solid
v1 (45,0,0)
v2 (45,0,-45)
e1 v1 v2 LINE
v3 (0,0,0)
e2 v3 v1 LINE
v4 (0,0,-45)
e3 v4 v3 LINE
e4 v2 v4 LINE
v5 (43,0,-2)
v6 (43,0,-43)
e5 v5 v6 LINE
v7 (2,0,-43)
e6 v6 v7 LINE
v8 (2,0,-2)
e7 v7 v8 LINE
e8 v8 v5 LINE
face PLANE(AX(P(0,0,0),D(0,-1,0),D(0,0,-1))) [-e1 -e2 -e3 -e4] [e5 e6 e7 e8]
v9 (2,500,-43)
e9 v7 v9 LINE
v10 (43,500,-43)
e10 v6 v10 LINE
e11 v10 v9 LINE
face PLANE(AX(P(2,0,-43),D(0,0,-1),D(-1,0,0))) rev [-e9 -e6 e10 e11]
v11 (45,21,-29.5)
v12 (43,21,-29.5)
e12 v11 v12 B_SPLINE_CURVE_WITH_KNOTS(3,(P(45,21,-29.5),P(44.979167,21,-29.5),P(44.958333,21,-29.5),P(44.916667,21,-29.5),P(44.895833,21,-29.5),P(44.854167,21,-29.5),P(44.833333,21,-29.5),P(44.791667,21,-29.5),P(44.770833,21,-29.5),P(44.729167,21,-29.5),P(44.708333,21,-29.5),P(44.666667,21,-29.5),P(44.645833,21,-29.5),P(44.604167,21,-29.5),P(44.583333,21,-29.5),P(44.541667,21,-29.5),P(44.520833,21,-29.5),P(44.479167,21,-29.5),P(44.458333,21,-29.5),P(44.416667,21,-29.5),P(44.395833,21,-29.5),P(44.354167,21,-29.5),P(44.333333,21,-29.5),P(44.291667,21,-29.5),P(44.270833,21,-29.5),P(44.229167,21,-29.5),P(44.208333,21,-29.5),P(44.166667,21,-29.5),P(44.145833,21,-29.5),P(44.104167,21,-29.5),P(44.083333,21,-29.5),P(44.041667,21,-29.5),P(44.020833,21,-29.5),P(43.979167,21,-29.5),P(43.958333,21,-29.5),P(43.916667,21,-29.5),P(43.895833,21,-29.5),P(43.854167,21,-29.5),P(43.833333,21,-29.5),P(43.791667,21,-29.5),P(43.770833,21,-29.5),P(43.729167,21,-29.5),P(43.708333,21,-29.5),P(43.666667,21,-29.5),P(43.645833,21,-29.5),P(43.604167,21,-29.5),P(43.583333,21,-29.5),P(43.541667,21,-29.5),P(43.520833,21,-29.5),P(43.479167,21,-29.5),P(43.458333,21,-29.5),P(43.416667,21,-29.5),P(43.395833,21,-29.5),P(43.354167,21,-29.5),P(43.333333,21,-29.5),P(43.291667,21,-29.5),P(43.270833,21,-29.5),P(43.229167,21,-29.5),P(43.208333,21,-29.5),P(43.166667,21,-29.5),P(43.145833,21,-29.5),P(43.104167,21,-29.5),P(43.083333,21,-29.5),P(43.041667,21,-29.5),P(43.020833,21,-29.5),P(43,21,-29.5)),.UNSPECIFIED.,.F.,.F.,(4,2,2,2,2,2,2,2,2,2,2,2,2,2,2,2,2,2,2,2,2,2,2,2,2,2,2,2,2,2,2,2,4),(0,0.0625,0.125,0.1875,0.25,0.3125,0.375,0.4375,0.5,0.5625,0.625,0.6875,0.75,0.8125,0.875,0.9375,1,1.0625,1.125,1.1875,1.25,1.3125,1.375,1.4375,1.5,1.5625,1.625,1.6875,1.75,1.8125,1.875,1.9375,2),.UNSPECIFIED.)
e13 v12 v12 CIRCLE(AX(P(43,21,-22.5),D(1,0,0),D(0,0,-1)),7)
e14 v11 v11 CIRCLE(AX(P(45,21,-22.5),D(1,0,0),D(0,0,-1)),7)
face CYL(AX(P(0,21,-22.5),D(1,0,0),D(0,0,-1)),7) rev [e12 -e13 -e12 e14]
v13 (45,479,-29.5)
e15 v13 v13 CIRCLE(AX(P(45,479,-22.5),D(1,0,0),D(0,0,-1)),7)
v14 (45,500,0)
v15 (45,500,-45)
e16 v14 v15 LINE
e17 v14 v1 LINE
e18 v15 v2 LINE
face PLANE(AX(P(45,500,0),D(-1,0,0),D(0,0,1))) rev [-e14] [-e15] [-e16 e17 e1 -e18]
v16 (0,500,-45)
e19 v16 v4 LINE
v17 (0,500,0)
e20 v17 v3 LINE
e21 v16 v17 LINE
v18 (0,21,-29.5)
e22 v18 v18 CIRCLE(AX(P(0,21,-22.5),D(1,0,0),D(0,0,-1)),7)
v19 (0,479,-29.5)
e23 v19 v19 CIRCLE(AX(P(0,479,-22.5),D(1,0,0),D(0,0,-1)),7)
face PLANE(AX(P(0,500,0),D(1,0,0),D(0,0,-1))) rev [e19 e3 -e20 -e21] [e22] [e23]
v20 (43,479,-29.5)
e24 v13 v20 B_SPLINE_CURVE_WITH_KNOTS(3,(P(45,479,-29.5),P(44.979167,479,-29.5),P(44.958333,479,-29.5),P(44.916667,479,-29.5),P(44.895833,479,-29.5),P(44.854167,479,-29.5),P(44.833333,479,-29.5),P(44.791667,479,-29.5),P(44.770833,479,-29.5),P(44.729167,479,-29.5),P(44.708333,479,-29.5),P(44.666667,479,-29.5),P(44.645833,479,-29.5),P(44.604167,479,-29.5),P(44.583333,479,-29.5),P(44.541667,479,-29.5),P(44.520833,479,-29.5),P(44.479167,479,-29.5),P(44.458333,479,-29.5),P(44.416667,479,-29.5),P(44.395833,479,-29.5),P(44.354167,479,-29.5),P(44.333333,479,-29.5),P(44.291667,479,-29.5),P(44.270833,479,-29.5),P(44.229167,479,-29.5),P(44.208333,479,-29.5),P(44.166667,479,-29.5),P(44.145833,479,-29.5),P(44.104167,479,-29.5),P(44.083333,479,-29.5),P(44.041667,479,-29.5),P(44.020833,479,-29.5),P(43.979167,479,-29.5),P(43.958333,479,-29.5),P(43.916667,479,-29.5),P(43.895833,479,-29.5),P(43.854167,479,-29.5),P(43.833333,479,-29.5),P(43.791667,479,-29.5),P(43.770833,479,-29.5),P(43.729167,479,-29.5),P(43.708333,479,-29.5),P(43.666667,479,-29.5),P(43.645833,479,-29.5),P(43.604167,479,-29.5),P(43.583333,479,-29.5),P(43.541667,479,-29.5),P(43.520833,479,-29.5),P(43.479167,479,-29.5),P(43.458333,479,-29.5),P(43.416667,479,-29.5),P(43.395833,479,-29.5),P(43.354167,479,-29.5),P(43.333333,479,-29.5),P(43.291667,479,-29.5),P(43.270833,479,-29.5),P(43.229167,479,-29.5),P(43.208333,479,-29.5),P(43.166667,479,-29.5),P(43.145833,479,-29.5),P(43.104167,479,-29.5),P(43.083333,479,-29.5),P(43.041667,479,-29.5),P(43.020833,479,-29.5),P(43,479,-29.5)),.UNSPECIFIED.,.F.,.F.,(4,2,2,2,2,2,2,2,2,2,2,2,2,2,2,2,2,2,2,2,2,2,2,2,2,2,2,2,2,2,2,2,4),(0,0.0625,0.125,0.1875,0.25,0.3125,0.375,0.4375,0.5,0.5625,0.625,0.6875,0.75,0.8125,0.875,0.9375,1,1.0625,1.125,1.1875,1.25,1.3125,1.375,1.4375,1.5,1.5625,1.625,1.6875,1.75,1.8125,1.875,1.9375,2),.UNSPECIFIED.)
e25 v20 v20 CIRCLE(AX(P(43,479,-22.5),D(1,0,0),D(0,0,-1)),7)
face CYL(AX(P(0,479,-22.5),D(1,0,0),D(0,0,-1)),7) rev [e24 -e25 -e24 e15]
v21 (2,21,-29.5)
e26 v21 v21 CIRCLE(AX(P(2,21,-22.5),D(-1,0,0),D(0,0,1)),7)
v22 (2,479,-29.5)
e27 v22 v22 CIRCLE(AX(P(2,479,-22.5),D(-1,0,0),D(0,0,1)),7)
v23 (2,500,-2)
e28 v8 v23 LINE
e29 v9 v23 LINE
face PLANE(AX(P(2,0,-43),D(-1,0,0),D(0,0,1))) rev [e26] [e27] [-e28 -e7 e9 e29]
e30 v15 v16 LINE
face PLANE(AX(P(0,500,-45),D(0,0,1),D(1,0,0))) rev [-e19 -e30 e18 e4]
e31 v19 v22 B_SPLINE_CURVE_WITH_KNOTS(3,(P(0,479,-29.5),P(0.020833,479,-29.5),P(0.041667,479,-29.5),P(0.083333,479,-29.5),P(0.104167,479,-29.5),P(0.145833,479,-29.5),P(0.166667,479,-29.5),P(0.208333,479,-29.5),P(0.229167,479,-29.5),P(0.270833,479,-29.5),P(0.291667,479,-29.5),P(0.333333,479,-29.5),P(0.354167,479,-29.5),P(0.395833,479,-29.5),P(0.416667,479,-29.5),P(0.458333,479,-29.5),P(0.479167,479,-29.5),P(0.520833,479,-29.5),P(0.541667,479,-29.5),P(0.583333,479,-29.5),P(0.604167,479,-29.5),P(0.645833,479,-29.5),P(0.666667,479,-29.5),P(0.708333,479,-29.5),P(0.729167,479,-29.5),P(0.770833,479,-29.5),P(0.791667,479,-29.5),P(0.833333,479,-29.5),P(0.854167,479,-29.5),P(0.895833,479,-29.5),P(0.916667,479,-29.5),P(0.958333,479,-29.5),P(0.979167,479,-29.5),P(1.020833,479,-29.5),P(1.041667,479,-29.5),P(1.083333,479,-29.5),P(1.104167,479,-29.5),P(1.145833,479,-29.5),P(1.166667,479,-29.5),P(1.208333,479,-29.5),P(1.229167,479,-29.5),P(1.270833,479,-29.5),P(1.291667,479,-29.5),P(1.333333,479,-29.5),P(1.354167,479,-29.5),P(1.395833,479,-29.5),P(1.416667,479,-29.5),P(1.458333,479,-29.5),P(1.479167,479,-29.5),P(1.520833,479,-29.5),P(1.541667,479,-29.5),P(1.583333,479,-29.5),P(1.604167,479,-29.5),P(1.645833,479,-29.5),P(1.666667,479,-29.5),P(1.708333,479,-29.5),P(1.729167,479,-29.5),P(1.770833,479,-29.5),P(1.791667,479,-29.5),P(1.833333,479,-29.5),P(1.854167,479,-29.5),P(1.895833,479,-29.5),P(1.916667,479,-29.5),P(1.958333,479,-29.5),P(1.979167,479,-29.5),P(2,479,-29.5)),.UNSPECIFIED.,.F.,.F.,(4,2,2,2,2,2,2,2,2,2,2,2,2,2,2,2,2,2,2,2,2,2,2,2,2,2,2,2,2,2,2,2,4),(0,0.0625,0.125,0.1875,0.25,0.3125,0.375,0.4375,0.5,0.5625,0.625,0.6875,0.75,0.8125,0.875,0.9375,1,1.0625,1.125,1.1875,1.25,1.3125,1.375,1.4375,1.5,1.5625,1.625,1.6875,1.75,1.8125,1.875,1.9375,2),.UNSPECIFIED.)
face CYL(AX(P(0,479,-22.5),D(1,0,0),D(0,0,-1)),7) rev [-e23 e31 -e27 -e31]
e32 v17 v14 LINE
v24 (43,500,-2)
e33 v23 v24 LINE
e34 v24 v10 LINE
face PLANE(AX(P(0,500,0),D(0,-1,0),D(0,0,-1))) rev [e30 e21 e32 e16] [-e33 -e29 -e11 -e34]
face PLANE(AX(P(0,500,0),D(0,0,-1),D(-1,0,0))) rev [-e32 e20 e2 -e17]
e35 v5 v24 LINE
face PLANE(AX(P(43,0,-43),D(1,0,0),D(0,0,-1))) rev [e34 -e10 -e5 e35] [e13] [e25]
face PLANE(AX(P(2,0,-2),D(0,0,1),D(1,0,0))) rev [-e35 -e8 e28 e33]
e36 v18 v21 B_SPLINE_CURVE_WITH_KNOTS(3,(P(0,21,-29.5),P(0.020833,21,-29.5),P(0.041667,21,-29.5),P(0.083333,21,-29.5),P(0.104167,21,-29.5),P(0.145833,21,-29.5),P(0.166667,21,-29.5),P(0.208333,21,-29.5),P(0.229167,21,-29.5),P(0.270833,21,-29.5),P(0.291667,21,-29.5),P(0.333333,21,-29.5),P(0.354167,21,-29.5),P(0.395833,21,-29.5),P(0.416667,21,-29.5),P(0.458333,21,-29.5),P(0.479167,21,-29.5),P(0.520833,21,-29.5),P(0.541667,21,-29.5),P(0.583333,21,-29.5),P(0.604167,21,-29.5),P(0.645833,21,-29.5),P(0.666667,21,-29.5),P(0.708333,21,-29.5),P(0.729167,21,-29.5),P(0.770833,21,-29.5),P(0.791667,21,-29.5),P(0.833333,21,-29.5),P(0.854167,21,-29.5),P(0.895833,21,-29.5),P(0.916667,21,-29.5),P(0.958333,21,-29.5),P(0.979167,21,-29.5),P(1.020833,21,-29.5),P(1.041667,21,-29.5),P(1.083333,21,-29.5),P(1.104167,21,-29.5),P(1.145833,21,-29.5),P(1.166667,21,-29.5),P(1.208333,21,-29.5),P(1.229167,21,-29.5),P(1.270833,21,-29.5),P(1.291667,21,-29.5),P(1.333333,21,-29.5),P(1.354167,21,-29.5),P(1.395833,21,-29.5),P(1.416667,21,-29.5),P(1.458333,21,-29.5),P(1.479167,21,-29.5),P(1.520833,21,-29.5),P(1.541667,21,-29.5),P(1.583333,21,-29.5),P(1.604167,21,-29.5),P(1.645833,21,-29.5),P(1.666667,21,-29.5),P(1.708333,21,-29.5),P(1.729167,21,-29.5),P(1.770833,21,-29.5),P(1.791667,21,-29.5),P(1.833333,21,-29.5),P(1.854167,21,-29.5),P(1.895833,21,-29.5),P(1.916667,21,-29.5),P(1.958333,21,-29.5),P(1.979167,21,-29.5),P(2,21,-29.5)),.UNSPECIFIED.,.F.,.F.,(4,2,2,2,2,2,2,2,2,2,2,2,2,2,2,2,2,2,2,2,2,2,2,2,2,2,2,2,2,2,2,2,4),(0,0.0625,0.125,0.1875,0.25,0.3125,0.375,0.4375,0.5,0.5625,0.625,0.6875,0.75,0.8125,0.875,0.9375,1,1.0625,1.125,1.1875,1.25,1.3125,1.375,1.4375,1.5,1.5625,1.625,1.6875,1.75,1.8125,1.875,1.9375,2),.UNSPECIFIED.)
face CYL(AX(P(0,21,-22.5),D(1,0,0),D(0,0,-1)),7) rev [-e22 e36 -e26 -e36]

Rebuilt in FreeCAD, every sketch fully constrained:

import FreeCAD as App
import Part
import Sketcher

V = App.Vector


def add_polygon(sketch, points):
    """Adds a closed chain of lines whose ends are joined by coincident constraints."""
    first, n = sketch.GeometryCount, len(points)
    for a, b in zip(points, points[1:] + points[:1]):
        sketch.addGeometry(Part.LineSegment(App.Vector(*a, 0), App.Vector(*b, 0)), False)
    for i in range(n):
        sketch.addConstraint(Sketcher.Constraint("Coincident", first + i, 2, first + (i + 1) % n, 1))

doc = App.newDocument("Part")
body = doc.addObject("PartDesign::Body", "Body")

# Sketch on XZ plane
sketch1 = body.newObject("Sketcher::SketchObject", "Sketch")
sketch1.AttachmentSupport = (doc.getObject("XZ_Plane"), [""])
sketch1.MapMode = "FlatFace"
add_polygon(sketch1, [(0, -45), (0, 0), (45, 0), (45, -45)])  # lines 0-3
sketch1.addConstraint([
    Sketcher.Constraint("Vertical", 0),
    Sketcher.Constraint("Horizontal", 1),
    Sketcher.Constraint("Vertical", 2),
    Sketcher.Constraint("Horizontal", 3),
    Sketcher.Constraint("Coincident", 0, 2, -1, 1),
    Sketcher.Constraint("Equal", 3, 0),
    Sketcher.Constraint("DistanceX", 1, 1, 1, 2, 45.0),
])
pad1 = body.newObject("PartDesign::Pad", "Pad")
pad1.Profile = sketch1
pad1.Length = 500
pad1.Reversed = True

# Sketch on XZ plane
sketch2 = body.newObject("Sketcher::SketchObject", "Sketch001")
sketch2.AttachmentSupport = (doc.getObject("XZ_Plane"), [""])
sketch2.MapMode = "FlatFace"
sketch2.AttachmentOffset = App.Placement(V(0, 0, -500), App.Rotation())
add_polygon(sketch2, [(2, -43), (2, -2), (43, -2), (43, -43)])  # lines 0-3
sketch2.addConstraint([
    Sketcher.Constraint("Vertical", 0),
    Sketcher.Constraint("Horizontal", 1),
    Sketcher.Constraint("Vertical", 2),
    Sketcher.Constraint("Horizontal", 3),
    Sketcher.Constraint("Equal", 3, 0),
    Sketcher.Constraint("DistanceX", 1, 1, 1, 2, 41.0),
    Sketcher.Constraint("DistanceX", -1, 1, 0, 2, 2.0),
    Sketcher.Constraint("DistanceY", 0, 2, -1, 1, 2.0),
])
pocket1 = body.newObject("PartDesign::Pocket", "Pocket")
pocket1.Profile = sketch2
pocket1.Type = "ThroughAll"
pocket1.Reversed = True

# Sketch on YZ plane
sketch3 = body.newObject("Sketcher::SketchObject", "Sketch002")
sketch3.AttachmentSupport = (doc.getObject("YZ_Plane"), [""])
sketch3.MapMode = "FlatFace"
sketch3.AttachmentOffset = App.Placement(V(0, 0, 45), App.Rotation())
sketch3.addGeometry([
    Part.Circle(V(479, -22.5, 0), V(0, 0, 1), 7),
    Part.Circle(V(21, -22.5, 0), V(0, 0, 1), 7),
], False)
sketch3.addConstraint([
    Sketcher.Constraint("Equal", 0, 1),
    Sketcher.Constraint("Horizontal", 0, 3, 1, 3),
    Sketcher.Constraint("Diameter", 0, 14.0),
    Sketcher.Constraint("DistanceX", -1, 1, 0, 3, 479.0),
    Sketcher.Constraint("DistanceX", -1, 1, 1, 3, 21.0),
    Sketcher.Constraint("DistanceY", 0, 3, -1, 1, 22.5),
])
pocket2 = body.newObject("PartDesign::Pocket", "Pocket001")
pocket2.Profile = sketch3
pocket2.Type = "ThroughAll"

doc.recompute()
